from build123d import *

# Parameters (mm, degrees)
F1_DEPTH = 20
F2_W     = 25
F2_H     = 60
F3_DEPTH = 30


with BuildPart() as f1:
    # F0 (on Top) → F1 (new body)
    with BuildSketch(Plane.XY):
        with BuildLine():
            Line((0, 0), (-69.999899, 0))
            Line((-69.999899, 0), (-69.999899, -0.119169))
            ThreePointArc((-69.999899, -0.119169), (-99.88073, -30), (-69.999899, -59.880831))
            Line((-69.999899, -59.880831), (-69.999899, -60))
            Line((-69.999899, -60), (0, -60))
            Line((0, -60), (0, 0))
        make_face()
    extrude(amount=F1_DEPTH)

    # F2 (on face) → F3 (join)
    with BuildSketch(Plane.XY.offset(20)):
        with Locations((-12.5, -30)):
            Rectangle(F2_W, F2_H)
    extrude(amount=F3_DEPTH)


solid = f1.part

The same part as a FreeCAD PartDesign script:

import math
import FreeCAD as App
import Part
import Sketcher
from FreeCAD import Vector


def add_polygon(sketch, points):
    """Adds a closed chain of lines whose ends are joined by coincident constraints."""
    first, n = sketch.GeometryCount, len(points)
    for a, b in zip(points, points[1:] + points[:1]):
        sketch.addGeometry(Part.LineSegment(App.Vector(*a, 0), App.Vector(*b, 0)), False)
    for i in range(n):
        sketch.addConstraint(Sketcher.Constraint("Coincident", first + i, 2, first + (i + 1) % n, 1))

doc = App.newDocument("Part")
body = doc.addObject("PartDesign::Body", "Body")

# Sketch on XY plane
sketch1 = body.newObject("Sketcher::SketchObject", "Sketch")
sketch1.AttachmentSupport = (doc.getObject("XY_Plane"), [""])
sketch1.MapMode = "FlatFace"
sketch1.addGeometry([
    Part.LineSegment(Vector(0, 0, 0), Vector(-70, 0, 0)),  # 0
    Part.LineSegment(Vector(-70, 0, 0), Vector(-70, -0.12, 0)),  # 1
    Part.ArcOfCircle(Part.Circle(Vector(-70, -30, 0), Vector(0, 0, 1), 29.88), math.radians(90), math.radians(270)),  # 2
    Part.LineSegment(Vector(-70, -59.88, 0), Vector(-70, -60, 0)),  # 3
    Part.LineSegment(Vector(-70, -60, 0), Vector(0, -60, 0)),  # 4
    Part.LineSegment(Vector(0, -60, 0), Vector(0, 0, 0)),  # 5
], False)
sketch1.addConstraint([
    Sketcher.Constraint("Coincident", 0, 2, 1, 1),
    Sketcher.Constraint("Coincident", 1, 2, 2, 1),
    Sketcher.Constraint("Coincident", 2, 2, 3, 1),
    Sketcher.Constraint("Coincident", 3, 2, 4, 1),
    Sketcher.Constraint("Coincident", 4, 2, 5, 1),
    Sketcher.Constraint("Coincident", 5, 2, 0, 1),
    Sketcher.Constraint("Horizontal", 0),
    Sketcher.Constraint("Vertical", 1),
    Sketcher.Constraint("Vertical", 3),
    Sketcher.Constraint("Horizontal", 4),
    Sketcher.Constraint("Vertical", 5),
    Sketcher.Constraint("Coincident", 5, 2, -1, 1),
    Sketcher.Constraint("Vertical", 2, 3, 0, 2),
    Sketcher.Constraint("Vertical", 1, 2, 2, 2),
    Sketcher.Constraint("Equal", 1, 3),
    Sketcher.Constraint("DistanceY", 5, 1, 5, 2, 60.0),
    Sketcher.Constraint("Radius", 2, 29.880831),
    Sketcher.Constraint("DistanceX", 0, 2, 0, 1, 69.999899),
])
pad1 = body.newObject("PartDesign::Pad", "Pad")
pad1.Profile = sketch1
pad1.Length = 20

# Sketch on XY plane
sketch2 = body.newObject("Sketcher::SketchObject", "Sketch001")
sketch2.AttachmentSupport = (doc.getObject("XY_Plane"), [""])
sketch2.MapMode = "FlatFace"
sketch2.AttachmentOffset = App.Placement(Vector(0, 0, 20), App.Rotation())
add_polygon(sketch2, [(-25, 0), (-25, -60), (0, -60), (0, 0)])  # lines 0-3
sketch2.addConstraint([
    Sketcher.Constraint("Vertical", 0),
    Sketcher.Constraint("Horizontal", 1),
    Sketcher.Constraint("Vertical", 2),
    Sketcher.Constraint("Horizontal", 3),
    Sketcher.Constraint("Coincident", 2, 2, -1, 1),
    Sketcher.Constraint("DistanceX", 1, 1, 1, 2, 25.0),
    Sketcher.Constraint("DistanceY", 0, 2, 0, 1, 60.0),
])
pad2 = body.newObject("PartDesign::Pad", "Pad001")
pad2.Profile = sketch2
pad2.Length = 30

doc.recompute()
